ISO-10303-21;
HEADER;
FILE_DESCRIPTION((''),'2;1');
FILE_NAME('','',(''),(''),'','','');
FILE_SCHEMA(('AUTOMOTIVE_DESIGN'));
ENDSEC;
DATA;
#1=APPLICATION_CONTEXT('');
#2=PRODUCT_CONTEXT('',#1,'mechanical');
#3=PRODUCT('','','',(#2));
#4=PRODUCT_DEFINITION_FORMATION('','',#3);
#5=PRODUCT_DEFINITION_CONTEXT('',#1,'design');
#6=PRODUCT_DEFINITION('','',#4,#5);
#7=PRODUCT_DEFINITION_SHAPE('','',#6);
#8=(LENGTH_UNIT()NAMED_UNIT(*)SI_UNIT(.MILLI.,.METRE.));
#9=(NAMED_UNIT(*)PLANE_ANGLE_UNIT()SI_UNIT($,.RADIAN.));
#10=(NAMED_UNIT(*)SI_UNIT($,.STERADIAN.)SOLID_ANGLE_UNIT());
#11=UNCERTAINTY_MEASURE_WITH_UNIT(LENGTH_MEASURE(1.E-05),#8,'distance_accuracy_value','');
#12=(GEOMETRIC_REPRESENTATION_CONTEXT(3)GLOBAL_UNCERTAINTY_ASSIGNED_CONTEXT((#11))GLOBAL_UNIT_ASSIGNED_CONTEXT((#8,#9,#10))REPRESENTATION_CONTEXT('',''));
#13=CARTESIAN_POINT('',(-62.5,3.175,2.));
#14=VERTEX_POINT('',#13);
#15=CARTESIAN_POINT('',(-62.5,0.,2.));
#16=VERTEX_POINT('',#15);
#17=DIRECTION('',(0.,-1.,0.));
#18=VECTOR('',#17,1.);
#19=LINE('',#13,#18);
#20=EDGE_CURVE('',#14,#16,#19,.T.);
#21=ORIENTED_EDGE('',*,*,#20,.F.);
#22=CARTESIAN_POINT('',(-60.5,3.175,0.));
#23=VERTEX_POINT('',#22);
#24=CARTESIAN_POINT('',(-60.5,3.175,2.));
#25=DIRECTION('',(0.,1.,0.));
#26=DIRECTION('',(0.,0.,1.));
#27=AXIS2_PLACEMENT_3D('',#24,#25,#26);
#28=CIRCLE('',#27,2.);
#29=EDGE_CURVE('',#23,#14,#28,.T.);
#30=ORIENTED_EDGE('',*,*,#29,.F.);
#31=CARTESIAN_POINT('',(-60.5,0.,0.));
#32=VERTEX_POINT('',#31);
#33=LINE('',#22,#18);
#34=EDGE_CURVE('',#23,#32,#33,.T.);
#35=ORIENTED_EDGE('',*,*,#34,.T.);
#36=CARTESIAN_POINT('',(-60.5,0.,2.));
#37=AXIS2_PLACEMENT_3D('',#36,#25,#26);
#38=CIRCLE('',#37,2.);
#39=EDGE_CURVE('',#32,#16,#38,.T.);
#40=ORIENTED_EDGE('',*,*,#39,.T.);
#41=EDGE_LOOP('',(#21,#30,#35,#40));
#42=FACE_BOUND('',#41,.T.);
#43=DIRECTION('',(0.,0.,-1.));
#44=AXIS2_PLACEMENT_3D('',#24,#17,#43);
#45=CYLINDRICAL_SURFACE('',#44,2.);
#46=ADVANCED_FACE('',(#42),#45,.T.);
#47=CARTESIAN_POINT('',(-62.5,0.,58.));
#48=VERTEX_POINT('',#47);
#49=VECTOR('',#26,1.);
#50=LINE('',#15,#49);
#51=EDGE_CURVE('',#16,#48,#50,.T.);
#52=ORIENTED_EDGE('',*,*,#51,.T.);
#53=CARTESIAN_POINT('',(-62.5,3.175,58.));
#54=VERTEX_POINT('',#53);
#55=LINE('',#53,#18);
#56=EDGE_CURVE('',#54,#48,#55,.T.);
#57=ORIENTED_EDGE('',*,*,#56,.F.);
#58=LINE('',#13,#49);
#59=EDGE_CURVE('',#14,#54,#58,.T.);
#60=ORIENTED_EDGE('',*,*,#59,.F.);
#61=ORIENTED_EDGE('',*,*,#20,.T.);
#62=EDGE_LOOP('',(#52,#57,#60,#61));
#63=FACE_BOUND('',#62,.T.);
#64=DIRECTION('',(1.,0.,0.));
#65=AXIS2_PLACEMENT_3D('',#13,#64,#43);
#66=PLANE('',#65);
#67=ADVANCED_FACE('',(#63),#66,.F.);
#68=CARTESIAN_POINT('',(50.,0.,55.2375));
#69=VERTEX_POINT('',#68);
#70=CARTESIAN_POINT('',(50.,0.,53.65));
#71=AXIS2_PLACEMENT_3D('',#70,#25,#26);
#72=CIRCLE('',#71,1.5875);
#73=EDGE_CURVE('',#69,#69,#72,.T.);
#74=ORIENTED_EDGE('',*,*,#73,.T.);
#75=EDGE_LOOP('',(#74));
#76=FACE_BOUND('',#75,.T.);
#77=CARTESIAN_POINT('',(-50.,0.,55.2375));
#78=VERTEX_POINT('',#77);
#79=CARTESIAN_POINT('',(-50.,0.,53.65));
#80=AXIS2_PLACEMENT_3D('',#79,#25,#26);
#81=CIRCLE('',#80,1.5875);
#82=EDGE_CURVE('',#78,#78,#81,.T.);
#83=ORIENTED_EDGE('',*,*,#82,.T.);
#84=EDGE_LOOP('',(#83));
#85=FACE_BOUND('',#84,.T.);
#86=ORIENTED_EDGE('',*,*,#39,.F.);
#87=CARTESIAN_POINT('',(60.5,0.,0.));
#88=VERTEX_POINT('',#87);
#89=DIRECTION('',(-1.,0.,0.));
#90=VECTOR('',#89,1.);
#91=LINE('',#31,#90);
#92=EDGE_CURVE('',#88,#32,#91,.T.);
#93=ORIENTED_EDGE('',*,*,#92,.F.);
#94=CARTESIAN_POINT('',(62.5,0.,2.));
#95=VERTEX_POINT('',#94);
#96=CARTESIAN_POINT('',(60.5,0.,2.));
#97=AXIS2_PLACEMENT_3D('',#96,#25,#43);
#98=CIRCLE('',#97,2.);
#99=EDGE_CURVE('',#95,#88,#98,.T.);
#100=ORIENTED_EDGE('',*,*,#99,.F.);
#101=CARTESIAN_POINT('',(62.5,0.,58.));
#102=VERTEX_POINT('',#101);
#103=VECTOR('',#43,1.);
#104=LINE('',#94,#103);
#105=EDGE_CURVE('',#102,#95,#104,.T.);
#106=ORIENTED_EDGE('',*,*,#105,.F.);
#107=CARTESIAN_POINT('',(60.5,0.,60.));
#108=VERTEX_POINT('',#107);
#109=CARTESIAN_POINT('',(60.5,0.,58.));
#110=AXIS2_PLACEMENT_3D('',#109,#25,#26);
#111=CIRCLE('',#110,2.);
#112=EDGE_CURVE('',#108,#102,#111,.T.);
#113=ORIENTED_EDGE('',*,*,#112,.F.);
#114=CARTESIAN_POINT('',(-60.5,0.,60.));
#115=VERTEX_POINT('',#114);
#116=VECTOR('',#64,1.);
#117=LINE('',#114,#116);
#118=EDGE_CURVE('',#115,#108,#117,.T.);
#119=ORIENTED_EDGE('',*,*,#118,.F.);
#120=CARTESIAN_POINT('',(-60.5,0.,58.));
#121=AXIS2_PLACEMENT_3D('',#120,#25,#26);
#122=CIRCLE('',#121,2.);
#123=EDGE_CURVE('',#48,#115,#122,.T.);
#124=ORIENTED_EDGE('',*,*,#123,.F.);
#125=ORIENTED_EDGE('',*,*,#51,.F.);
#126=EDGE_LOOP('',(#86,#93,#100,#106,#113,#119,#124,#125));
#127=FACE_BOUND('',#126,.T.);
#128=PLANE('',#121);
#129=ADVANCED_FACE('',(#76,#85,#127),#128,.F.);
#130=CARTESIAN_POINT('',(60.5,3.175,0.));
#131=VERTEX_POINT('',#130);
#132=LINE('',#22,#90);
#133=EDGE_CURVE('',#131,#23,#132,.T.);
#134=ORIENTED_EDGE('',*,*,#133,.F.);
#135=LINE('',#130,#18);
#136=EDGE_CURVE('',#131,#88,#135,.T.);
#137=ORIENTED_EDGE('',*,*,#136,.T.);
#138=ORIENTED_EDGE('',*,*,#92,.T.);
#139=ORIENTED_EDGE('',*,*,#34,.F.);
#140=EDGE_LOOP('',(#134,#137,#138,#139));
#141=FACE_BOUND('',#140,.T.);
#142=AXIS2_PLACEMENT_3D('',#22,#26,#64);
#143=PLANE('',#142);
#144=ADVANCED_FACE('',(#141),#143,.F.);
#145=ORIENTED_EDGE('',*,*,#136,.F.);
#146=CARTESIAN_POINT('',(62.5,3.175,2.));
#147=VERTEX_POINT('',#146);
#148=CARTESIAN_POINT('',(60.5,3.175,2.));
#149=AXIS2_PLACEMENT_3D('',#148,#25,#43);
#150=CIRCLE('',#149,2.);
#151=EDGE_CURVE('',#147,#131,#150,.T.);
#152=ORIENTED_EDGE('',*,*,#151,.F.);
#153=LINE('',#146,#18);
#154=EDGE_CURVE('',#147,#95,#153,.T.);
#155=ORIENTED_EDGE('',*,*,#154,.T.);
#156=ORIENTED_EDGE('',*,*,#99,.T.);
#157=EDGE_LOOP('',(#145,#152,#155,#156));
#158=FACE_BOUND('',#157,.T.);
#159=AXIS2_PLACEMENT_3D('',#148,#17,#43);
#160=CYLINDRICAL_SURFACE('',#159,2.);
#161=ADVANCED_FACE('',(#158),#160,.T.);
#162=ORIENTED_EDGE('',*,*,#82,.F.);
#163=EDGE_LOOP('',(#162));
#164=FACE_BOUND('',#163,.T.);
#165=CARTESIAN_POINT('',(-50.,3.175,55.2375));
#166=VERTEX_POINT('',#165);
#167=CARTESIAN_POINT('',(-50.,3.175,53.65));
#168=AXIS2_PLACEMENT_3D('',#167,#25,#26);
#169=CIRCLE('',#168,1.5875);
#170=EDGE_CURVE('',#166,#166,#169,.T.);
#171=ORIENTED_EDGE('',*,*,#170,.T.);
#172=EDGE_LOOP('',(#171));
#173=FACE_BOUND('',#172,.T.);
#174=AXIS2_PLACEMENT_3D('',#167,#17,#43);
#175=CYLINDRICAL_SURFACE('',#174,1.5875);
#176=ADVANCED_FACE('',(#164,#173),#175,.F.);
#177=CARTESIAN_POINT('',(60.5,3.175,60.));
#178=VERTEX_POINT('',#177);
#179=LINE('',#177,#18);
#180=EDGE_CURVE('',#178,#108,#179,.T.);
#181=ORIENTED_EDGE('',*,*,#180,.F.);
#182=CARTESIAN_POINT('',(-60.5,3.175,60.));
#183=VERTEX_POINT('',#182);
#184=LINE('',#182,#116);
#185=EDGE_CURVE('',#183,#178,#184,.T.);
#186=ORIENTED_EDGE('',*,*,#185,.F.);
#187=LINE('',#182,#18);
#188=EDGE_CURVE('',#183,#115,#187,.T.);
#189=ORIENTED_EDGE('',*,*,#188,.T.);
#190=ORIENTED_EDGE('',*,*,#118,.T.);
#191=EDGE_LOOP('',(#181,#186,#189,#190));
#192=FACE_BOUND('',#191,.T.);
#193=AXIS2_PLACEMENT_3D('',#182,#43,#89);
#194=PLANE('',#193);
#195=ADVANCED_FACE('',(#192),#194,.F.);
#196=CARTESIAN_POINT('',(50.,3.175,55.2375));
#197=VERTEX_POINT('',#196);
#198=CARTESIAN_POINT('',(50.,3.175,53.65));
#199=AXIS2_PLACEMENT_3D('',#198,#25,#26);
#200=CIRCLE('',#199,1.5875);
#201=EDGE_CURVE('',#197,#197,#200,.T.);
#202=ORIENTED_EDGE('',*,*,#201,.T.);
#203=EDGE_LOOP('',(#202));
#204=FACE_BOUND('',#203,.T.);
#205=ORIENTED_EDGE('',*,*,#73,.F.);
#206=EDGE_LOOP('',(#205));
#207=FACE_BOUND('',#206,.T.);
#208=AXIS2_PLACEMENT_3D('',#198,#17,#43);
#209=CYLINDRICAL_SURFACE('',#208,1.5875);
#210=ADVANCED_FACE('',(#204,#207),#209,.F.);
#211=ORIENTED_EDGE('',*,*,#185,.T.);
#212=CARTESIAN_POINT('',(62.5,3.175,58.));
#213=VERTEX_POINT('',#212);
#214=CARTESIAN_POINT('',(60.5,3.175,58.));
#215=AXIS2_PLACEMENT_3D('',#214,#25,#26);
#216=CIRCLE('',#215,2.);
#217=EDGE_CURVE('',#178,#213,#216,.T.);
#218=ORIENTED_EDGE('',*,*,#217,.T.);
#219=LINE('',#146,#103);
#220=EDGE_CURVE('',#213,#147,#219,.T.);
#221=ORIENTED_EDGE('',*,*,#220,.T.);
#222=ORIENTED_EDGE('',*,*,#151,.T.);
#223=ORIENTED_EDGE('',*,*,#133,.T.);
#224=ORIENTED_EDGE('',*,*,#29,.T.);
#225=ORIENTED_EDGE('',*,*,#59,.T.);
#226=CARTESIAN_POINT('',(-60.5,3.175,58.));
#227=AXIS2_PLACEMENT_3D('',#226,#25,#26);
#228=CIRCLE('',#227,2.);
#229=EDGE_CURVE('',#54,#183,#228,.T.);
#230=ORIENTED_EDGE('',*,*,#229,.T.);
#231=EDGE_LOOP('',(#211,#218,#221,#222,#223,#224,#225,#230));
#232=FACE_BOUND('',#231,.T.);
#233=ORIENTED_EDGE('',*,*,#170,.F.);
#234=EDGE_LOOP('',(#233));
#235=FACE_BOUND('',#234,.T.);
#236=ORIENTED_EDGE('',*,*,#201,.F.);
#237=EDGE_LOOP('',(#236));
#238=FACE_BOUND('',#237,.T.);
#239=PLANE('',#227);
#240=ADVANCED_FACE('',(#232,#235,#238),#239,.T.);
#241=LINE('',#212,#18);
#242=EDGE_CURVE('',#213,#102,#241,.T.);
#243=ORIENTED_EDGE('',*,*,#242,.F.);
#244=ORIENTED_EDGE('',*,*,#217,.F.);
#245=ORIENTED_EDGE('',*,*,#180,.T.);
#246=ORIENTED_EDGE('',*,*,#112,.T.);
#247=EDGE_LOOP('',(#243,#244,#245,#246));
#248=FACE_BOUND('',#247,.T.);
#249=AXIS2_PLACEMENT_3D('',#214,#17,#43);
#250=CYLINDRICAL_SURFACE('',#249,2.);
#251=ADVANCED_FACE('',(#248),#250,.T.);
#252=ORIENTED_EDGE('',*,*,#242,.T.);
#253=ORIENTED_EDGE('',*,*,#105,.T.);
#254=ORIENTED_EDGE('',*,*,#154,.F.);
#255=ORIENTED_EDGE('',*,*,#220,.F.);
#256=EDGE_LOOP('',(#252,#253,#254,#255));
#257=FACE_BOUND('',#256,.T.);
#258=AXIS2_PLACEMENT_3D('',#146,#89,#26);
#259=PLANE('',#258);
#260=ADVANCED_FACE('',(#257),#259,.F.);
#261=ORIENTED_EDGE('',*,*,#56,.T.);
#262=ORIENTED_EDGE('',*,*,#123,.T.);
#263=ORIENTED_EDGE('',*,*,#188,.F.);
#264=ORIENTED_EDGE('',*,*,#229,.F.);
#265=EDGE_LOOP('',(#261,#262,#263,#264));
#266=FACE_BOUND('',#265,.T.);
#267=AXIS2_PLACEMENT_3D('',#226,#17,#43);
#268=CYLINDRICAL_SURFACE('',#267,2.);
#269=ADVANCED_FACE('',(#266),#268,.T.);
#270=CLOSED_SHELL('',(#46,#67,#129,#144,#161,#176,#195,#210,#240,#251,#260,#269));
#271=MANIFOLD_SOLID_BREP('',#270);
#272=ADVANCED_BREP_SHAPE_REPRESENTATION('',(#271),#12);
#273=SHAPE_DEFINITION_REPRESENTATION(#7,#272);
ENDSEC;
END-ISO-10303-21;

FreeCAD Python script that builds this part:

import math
import FreeCAD as App
import Part
import Sketcher
from FreeCAD import Vector
Q = App.Units.Quantity

doc = App.newDocument("Part")
params = doc.addObject("Spreadsheet::Sheet", "Params")
for row, (alias, value) in enumerate([
    ("sketch1_radius", "2 mm"),
    ("sketch1_width", "121 mm"),
    ("sketch1_height", "56 mm"),
    ("pad1_length", "3.175 mm"),
], start=1):
    params.set(f"A{row}", alias)
    params.set(f"B{row}", "=" + value)
    params.setAlias(f"B{row}", alias)

body = doc.addObject("PartDesign::Body", "Body")

sketch1 = body.newObject("Sketcher::SketchObject", "Sketch")
sketch1.AttachmentSupport = (doc.getObject("XZ_Plane"), [""])
sketch1.MapMode = "FlatFace"
sketch1.addGeometry(Part.LineSegment(Vector(60.5, 0, 0), Vector(-60.5, 0, 0)), False)
sketch1.addGeometry(Part.ArcOfCircle(Part.Circle(Vector(-60.5, 2, 0), Vector(0, 0, 1), 2), math.radians(-180), math.radians(-90)), False)
sketch1.addGeometry(Part.LineSegment(Vector(-62.5, 2, 0), Vector(-62.5, 58, 0)), False)
sketch1.addGeometry(Part.ArcOfCircle(Part.Circle(Vector(-60.5, 58, 0), Vector(0, 0, 1), 2), math.radians(90), math.radians(180)), False)
sketch1.addGeometry(Part.LineSegment(Vector(-60.5, 60, 0), Vector(60.5, 60, 0)), False)
sketch1.addGeometry(Part.ArcOfCircle(Part.Circle(Vector(60.5, 58, 0), Vector(0, 0, 1), 2), math.radians(0), math.radians(90)), False)
sketch1.addGeometry(Part.LineSegment(Vector(62.5, 58, 0), Vector(62.5, 2, 0)), False)
sketch1.addGeometry(Part.ArcOfCircle(Part.Circle(Vector(60.5, 2, 0), Vector(0, 0, 1), 2), math.radians(-90), math.radians(0)), False)
sketch1.addGeometry(Part.Circle(Vector(50, 53.6, 0), Vector(0, 0, 1), 1.6), False)
sketch1.addGeometry(Part.Circle(Vector(-50, 53.6, 0), Vector(0, 0, 1), 1.6), False)
sketch1.addConstraint(Sketcher.Constraint("Tangent", 0, 2, 1, 2))
sketch1.addConstraint(Sketcher.Constraint("Tangent", 1, 1, 2, 1))
sketch1.addConstraint(Sketcher.Constraint("Tangent", 2, 2, 3, 2))
sketch1.addConstraint(Sketcher.Constraint("Tangent", 3, 1, 4, 1))
sketch1.addConstraint(Sketcher.Constraint("Tangent", 4, 2, 5, 2))
sketch1.addConstraint(Sketcher.Constraint("Tangent", 5, 1, 6, 1))
sketch1.addConstraint(Sketcher.Constraint("Tangent", 6, 2, 7, 2))
sketch1.addConstraint(Sketcher.Constraint("Tangent", 7, 1, 0, 1))
sketch1.addConstraint(Sketcher.Constraint("Horizontal", 0))
sketch1.addConstraint(Sketcher.Constraint("Vertical", 2))
sketch1.addConstraint(Sketcher.Constraint("Horizontal", 4))
sketch1.addConstraint(Sketcher.Constraint("Vertical", 6))
sketch1.addConstraint(Sketcher.Constraint("Equal", 1, 3))
sketch1.addConstraint(Sketcher.Constraint("Equal", 3, 5))
sketch1.addConstraint(Sketcher.Constraint("Equal", 5, 7))
sketch1.addConstraint(Sketcher.Constraint("Equal", 8, 9))
sketch1.addConstraint(Sketcher.Constraint("Symmetric", 0, 2, 7, 1, -1, 1))
sketch1.addConstraint(Sketcher.Constraint("Symmetric", 8, 3, 9, 3, -2))
sketch1.addConstraint(Sketcher.Constraint("Radius", 1, Q("2 mm")))
sketch1.addConstraint(Sketcher.Constraint("DistanceX", 0, 2, 0, 1, Q("121 mm")))
sketch1.addConstraint(Sketcher.Constraint("DistanceY", 2, 1, 2, 2, Q("56 mm")))
sketch1.addConstraint(Sketcher.Constraint("Diameter", 8, Q("3.175 mm")))
sketch1.addConstraint(Sketcher.Constraint("DistanceX", -1, 1, 8, 3, Q("50 mm")))
sketch1.addConstraint(Sketcher.Constraint("DistanceY", -1, 1, 8, 3, Q("53.65 mm")))
sketch1.setExpression("Constraints[18]", "Params.sketch1_radius")
sketch1.setExpression("Constraints[19]", "Params.sketch1_width")
sketch1.setExpression("Constraints[20]", "Params.sketch1_height")
pad1 = body.newObject("PartDesign::Pad", "Pad")
pad1.Profile = sketch1
pad1.setExpression("Length", "Params.pad1_length")
pad1.Reversed = True

doc.recompute()
